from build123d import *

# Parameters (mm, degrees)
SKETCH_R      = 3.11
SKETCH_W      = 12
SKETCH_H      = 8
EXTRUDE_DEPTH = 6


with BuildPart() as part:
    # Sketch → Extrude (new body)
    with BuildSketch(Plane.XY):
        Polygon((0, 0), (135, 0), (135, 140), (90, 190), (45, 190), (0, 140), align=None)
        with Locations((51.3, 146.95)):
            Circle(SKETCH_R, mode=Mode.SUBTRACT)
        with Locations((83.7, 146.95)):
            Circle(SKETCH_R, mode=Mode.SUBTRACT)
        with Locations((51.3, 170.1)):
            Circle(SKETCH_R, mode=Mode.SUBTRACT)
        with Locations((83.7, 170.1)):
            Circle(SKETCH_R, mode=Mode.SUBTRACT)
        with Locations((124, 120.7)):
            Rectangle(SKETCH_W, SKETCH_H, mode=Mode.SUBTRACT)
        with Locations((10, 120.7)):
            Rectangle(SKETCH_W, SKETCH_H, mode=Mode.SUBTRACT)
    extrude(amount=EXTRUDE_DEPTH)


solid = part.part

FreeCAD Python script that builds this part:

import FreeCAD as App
import Part
import Sketcher


def add_polygon(sketch, points):
    """Adds a closed chain of lines whose ends are joined by coincident constraints."""
    first, n = sketch.GeometryCount, len(points)
    for a, b in zip(points, points[1:] + points[:1]):
        sketch.addGeometry(Part.LineSegment(App.Vector(*a, 0), App.Vector(*b, 0)), False)
    for i in range(n):
        sketch.addConstraint(Sketcher.Constraint("Coincident", first + i, 2, first + (i + 1) % n, 1))

doc = App.newDocument("Part")
body = doc.addObject("PartDesign::Body", "Body")

sketch1 = body.newObject("Sketcher::SketchObject", "Sketch")
sketch1.AttachmentSupport = (doc.getObject("XY_Plane"), [""])
sketch1.MapMode = "FlatFace"
add_polygon(sketch1, [(0, 0), (135, 0), (135, 140), (90, 190), (45, 190), (0, 140)])
add_polygon(sketch1, [(16, 116.7), (4, 116.7), (4, 124.7), (16, 124.7)])
add_polygon(sketch1, [(130, 116.7), (118, 116.7), (118, 124.7), (130, 124.7)])
sketch1.addGeometry(Part.Circle(App.Vector(51.3, 146.9, 0), App.Vector(0, 0, 1), 3.1), False)
sketch1.addGeometry(Part.Circle(App.Vector(51.3, 170.1, 0), App.Vector(0, 0, 1), 3.1), False)
sketch1.addGeometry(Part.Circle(App.Vector(83.7, 146.9, 0), App.Vector(0, 0, 1), 3.1), False)
sketch1.addGeometry(Part.Circle(App.Vector(83.7, 170.1, 0), App.Vector(0, 0, 1), 3.1), False)
sketch1.addConstraint(Sketcher.Constraint("Horizontal", 0))
sketch1.addConstraint(Sketcher.Constraint("Vertical", 1))
sketch1.addConstraint(Sketcher.Constraint("Horizontal", 3))
sketch1.addConstraint(Sketcher.Constraint("Vertical", 5))
sketch1.addConstraint(Sketcher.Constraint("Horizontal", 6))
sketch1.addConstraint(Sketcher.Constraint("Vertical", 7))
sketch1.addConstraint(Sketcher.Constraint("Horizontal", 8))
sketch1.addConstraint(Sketcher.Constraint("Vertical", 9))
sketch1.addConstraint(Sketcher.Constraint("Horizontal", 10))
sketch1.addConstraint(Sketcher.Constraint("Vertical", 11))
sketch1.addConstraint(Sketcher.Constraint("Horizontal", 12))
sketch1.addConstraint(Sketcher.Constraint("Vertical", 13))
sketch1.addConstraint(Sketcher.Constraint("Coincident", 5, 2, -1, 1))
sketch1.addConstraint(Sketcher.Constraint("Equal", 14, 15))
sketch1.addConstraint(Sketcher.Constraint("Equal", 15, 16))
sketch1.addConstraint(Sketcher.Constraint("Equal", 16, 17))
sketch1.addConstraint(Sketcher.Constraint("Horizontal", 14, 3, 16, 3))
sketch1.addConstraint(Sketcher.Constraint("Horizontal", 15, 3, 17, 3))
sketch1.addConstraint(Sketcher.Constraint("Horizontal", 1, 2, 4, 2))
sketch1.addConstraint(Sketcher.Constraint("Horizontal", 9, 2, 10, 2))
sketch1.addConstraint(Sketcher.Constraint("Horizontal", 8, 2, 11, 2))
sketch1.addConstraint(Sketcher.Constraint("Vertical", 14, 3, 15, 3))
sketch1.addConstraint(Sketcher.Constraint("Vertical", 16, 3, 17, 3))
sketch1.addConstraint(Sketcher.Constraint("Equal", 8, 10))
sketch1.addConstraint(Sketcher.Constraint("Equal", 2, 4))
sketch1.addConstraint(Sketcher.Constraint("Diameter", 14, 6.22))
sketch1.addConstraint(Sketcher.Constraint("DistanceX", 0, 1, 0, 2, 135.0))
sketch1.addConstraint(Sketcher.Constraint("DistanceX", 3, 2, 3, 1, 45.0))
sketch1.addConstraint(Sketcher.Constraint("DistanceX", 6, 2, 6, 1, 12.0))
sketch1.addConstraint(Sketcher.Constraint("DistanceY", 1, 1, 1, 2, 140.0))
sketch1.addConstraint(Sketcher.Constraint("DistanceY", 7, 1, 7, 2, 8.0))
sketch1.addConstraint(Sketcher.Constraint("DistanceY", -1, 1, 2, 2, 190.0))
sketch1.addConstraint(Sketcher.Constraint("DistanceX", -1, 1, 6, 2, 4.0))
sketch1.addConstraint(Sketcher.Constraint("DistanceX", -1, 1, 10, 2, 118.0))
sketch1.addConstraint(Sketcher.Constraint("DistanceX", -1, 1, 14, 3, 51.3))
sketch1.addConstraint(Sketcher.Constraint("DistanceY", -1, 1, 15, 3, 170.1))
sketch1.addConstraint(Sketcher.Constraint("DistanceX", -1, 1, 16, 3, 83.7))
sketch1.addConstraint(Sketcher.Constraint("DistanceY", -1, 1, 6, 2, 116.7))
sketch1.addConstraint(Sketcher.Constraint("DistanceY", -1, 1, 14, 3, 146.95))
pad1 = body.newObject("PartDesign::Pad", "Pad")
pad1.Profile = sketch1
pad1.Length = 6

doc.recompute()
